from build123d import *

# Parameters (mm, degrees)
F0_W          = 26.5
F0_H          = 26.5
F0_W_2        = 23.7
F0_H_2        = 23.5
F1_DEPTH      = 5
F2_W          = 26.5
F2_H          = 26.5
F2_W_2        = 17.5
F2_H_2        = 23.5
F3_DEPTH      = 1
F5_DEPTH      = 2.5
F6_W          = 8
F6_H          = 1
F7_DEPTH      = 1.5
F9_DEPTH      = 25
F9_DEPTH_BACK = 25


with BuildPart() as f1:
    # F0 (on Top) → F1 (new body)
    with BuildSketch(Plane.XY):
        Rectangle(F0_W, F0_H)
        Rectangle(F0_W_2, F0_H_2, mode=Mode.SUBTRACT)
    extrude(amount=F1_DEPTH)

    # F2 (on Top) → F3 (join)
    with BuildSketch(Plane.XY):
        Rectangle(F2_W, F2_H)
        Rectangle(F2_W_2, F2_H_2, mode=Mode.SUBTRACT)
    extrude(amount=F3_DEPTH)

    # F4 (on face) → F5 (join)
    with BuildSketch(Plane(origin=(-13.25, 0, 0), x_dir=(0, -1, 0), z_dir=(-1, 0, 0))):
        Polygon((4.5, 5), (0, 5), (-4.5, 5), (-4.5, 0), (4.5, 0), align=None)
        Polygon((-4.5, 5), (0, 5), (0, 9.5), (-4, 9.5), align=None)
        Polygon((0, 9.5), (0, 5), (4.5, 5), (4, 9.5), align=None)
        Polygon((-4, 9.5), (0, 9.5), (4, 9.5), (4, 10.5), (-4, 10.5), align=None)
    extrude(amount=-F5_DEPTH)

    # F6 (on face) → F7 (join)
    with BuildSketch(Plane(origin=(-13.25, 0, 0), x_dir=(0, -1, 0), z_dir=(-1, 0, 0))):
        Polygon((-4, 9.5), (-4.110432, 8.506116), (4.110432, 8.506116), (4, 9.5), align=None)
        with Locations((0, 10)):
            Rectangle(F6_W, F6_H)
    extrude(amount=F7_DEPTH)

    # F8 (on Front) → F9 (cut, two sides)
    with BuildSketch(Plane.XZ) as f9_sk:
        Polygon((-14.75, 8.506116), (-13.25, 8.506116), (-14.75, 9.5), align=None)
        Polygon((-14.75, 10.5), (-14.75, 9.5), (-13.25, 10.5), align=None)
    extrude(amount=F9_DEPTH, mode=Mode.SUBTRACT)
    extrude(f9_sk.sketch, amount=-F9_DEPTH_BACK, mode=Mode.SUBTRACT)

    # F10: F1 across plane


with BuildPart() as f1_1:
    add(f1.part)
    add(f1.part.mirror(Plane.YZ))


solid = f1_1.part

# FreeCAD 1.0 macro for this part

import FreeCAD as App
import Part
import Sketcher

V = App.Vector
Q = App.Units.Quantity


def add_polygon(sketch, points):
    """Adds a closed chain of lines whose ends are joined by coincident constraints."""
    first, n = sketch.GeometryCount, len(points)
    for a, b in zip(points, points[1:] + points[:1]):
        sketch.addGeometry(Part.LineSegment(App.Vector(*a, 0), App.Vector(*b, 0)), False)
    for i in range(n):
        sketch.addConstraint(Sketcher.Constraint("Coincident", first + i, 2, first + (i + 1) % n, 1))

doc = App.newDocument("Part")
body = doc.addObject("PartDesign::Body", "Body")

# Sketch on XY plane
sketch1 = body.newObject("Sketcher::SketchObject", "Sketch")
sketch1.AttachmentSupport = (doc.getObject("XY_Plane"), [""])
sketch1.MapMode = "FlatFace"
add_polygon(sketch1, [(-13, 13), (-13, -13), (13, -13), (13, 13)])  # lines 0-3
add_polygon(sketch1, [(12, -12), (-12, -12), (-12, 12), (12, 12)])  # lines 4-7
sketch1.addConstraint(Sketcher.Constraint("Vertical", 0))
sketch1.addConstraint(Sketcher.Constraint("Horizontal", 1))
sketch1.addConstraint(Sketcher.Constraint("Vertical", 2))
sketch1.addConstraint(Sketcher.Constraint("Horizontal", 3))
sketch1.addConstraint(Sketcher.Constraint("Horizontal", 4))
sketch1.addConstraint(Sketcher.Constraint("Vertical", 5))
sketch1.addConstraint(Sketcher.Constraint("Horizontal", 6))
sketch1.addConstraint(Sketcher.Constraint("Vertical", 7))
sketch1.addConstraint(Sketcher.Constraint("Symmetric", 0, 2, 2, 2, -1, 1))
sketch1.addConstraint(Sketcher.Constraint("Symmetric", 4, 2, 6, 2, -1, 1))
sketch1.addConstraint(Sketcher.Constraint("Equal", 3, 0))
sketch1.addConstraint(Sketcher.Constraint("DistanceX", 1, 1, 1, 2, Q("26.5 mm")))
sketch1.addConstraint(Sketcher.Constraint("DistanceX", 4, 2, 4, 1, Q("23.7 mm")))
sketch1.addConstraint(Sketcher.Constraint("DistanceY", 5, 1, 5, 2, Q("23.5 mm")))
pad1 = body.newObject("PartDesign::Pad", "Pad")
pad1.Profile = sketch1
pad1.Length = 5

# Sketch on XY plane
sketch2 = body.newObject("Sketcher::SketchObject", "Sketch001")
sketch2.AttachmentSupport = (doc.getObject("XY_Plane"), [""])
sketch2.MapMode = "FlatFace"
add_polygon(sketch2, [(-13, 13), (-13, -13), (13, -13), (13, 13)])  # lines 0-3
add_polygon(sketch2, [(9, -12), (-9, -12), (-9, 12), (9, 12)])  # lines 4-7
sketch2.addConstraint(Sketcher.Constraint("Vertical", 0))
sketch2.addConstraint(Sketcher.Constraint("Horizontal", 1))
sketch2.addConstraint(Sketcher.Constraint("Vertical", 2))
sketch2.addConstraint(Sketcher.Constraint("Horizontal", 3))
sketch2.addConstraint(Sketcher.Constraint("Horizontal", 4))
sketch2.addConstraint(Sketcher.Constraint("Vertical", 5))
sketch2.addConstraint(Sketcher.Constraint("Horizontal", 6))
sketch2.addConstraint(Sketcher.Constraint("Vertical", 7))
sketch2.addConstraint(Sketcher.Constraint("Symmetric", 0, 2, 2, 2, -1, 1))
sketch2.addConstraint(Sketcher.Constraint("Symmetric", 4, 2, 6, 2, -1, 1))
sketch2.addConstraint(Sketcher.Constraint("Equal", 3, 0))
sketch2.addConstraint(Sketcher.Constraint("DistanceX", 1, 1, 1, 2, Q("26.5 mm")))
sketch2.addConstraint(Sketcher.Constraint("DistanceX", 4, 2, 4, 1, Q("17.5 mm")))
sketch2.addConstraint(Sketcher.Constraint("DistanceY", 5, 1, 5, 2, Q("23.5 mm")))
pad2 = body.newObject("PartDesign::Pad", "Pad001")
pad2.Profile = sketch2
pad2.Length = 1

# Sketch on YZ plane
sketch3 = body.newObject("Sketcher::SketchObject", "Sketch002")
sketch3.AttachmentSupport = (doc.getObject("YZ_Plane"), [""])
sketch3.MapMode = "FlatFace"
sketch3.AttachmentOffset = App.Placement(V(0, 0, -13.25), App.Rotation())
add_polygon(sketch3, [(4, 9.5), (4.5, 5), (4.5, 0), (-4.5, 0), (-4.5, 5), (-4, 9.5), (-4, 10.5), (4, 10.5)])  # lines 0-7
sketch3.addConstraint(Sketcher.Constraint("Vertical", 1))
sketch3.addConstraint(Sketcher.Constraint("Horizontal", 2))
sketch3.addConstraint(Sketcher.Constraint("Vertical", 3))
sketch3.addConstraint(Sketcher.Constraint("Vertical", 5))
sketch3.addConstraint(Sketcher.Constraint("Horizontal", 6))
sketch3.addConstraint(Sketcher.Constraint("Vertical", 7))
sketch3.addConstraint(Sketcher.Constraint("Symmetric", 1, 2, 2, 2, -1, 1))
sketch3.addConstraint(Sketcher.Constraint("Symmetric", 4, 2, 7, 2, -2))
sketch3.addConstraint(Sketcher.Constraint("Horizontal", 0, 2, 3, 2))
sketch3.addConstraint(Sketcher.Constraint("DistanceX", 2, 2, 2, 1, Q("9 mm")))
sketch3.addConstraint(Sketcher.Constraint("DistanceX", 6, 1, 6, 2, Q("8 mm")))
sketch3.addConstraint(Sketcher.Constraint("DistanceY", 1, 2, 1, 1, Q("5 mm")))
sketch3.addConstraint(Sketcher.Constraint("DistanceY", 5, 1, 5, 2, Q("1 mm")))
sketch3.addConstraint(Sketcher.Constraint("DistanceY", -1, 1, 4, 2, Q("9.5 mm")))
pad3 = body.newObject("PartDesign::Pad", "Pad002")
pad3.Profile = sketch3
pad3.Length = 2.5

# Sketch on YZ plane
sketch4 = body.newObject("Sketcher::SketchObject", "Sketch003")
sketch4.AttachmentSupport = (doc.getObject("YZ_Plane"), [""])
sketch4.MapMode = "FlatFace"
sketch4.AttachmentOffset = App.Placement(V(0, 0, -13.25), App.Rotation())
add_polygon(sketch4, [(4, 9.5), (4.1, 8.5), (-4.1, 8.5), (-4, 9.5), (-4, 10.5), (4, 10.5)])  # lines 0-5
sketch4.addConstraint(Sketcher.Constraint("Horizontal", 1))
sketch4.addConstraint(Sketcher.Constraint("Vertical", 3))
sketch4.addConstraint(Sketcher.Constraint("Horizontal", 4))
sketch4.addConstraint(Sketcher.Constraint("Vertical", 5))
sketch4.addConstraint(Sketcher.Constraint("Symmetric", 2, 2, 5, 2, -2))
sketch4.addConstraint(Sketcher.Constraint("Equal", 0, 2))
sketch4.addConstraint(Sketcher.Constraint("DistanceX", 4, 1, 4, 2, Q("8 mm")))
sketch4.addConstraint(Sketcher.Constraint("DistanceY", 3, 1, 3, 2, Q("1 mm")))
sketch4.addConstraint(Sketcher.Constraint("Distance", 0, Q("1 mm")))
sketch4.addConstraint(Sketcher.Constraint("DistanceY", -1, 1, 2, 2, Q("9.5 mm")))
sketch4.addConstraint(Sketcher.Constraint("DistanceX", 1, 2, 1, 1, Q("8.220864 mm")))
pad4 = body.newObject("PartDesign::Pad", "Pad003")
pad4.Profile = sketch4
pad4.Length = 1.5
pad4.Reversed = True

# Sketch on XZ plane
sketch5 = body.newObject("Sketcher::SketchObject", "Sketch004")
sketch5.AttachmentSupport = (doc.getObject("XZ_Plane"), [""])
sketch5.MapMode = "FlatFace"
add_polygon(sketch5, [(-14.8, 8.5), (-13.2, 8.5), (-14.8, 9.5)])  # lines 0-2
add_polygon(sketch5, [(-14.8, 10.5), (-14.8, 9.5), (-13.2, 10.5)])  # lines 3-5
sketch5.addConstraint(Sketcher.Constraint("Horizontal", 0))
sketch5.addConstraint(Sketcher.Constraint("Vertical", 2))
sketch5.addConstraint(Sketcher.Constraint("Vertical", 3))
sketch5.addConstraint(Sketcher.Constraint("Horizontal", 5))
sketch5.addConstraint(Sketcher.Constraint("Coincident", 3, 2, 1, 2))
sketch5.addConstraint(Sketcher.Constraint("Vertical", 0, 2, 4, 2))
sketch5.addConstraint(Sketcher.Constraint("DistanceY", 3, 2, 3, 1, Q("1 mm")))
sketch5.addConstraint(Sketcher.Constraint("DistanceX", 0, 1, 0, 2, Q("1.5 mm")))
sketch5.addConstraint(Sketcher.Constraint("DistanceY", -1, 1, 1, 2, Q("9.5 mm")))
sketch5.addConstraint(Sketcher.Constraint("DistanceX", 0, 2, -1, 1, Q("13.25 mm")))
sketch5.addConstraint(Sketcher.Constraint("Distance", 1, Q("1.79939 mm")))
pocket1 = body.newObject("PartDesign::Pocket", "Pocket")
pocket1.Profile = sketch5
pocket1.Type = "ThroughAll"
pocket1.Midplane = True
body2 = doc.addObject("PartDesign::Body", "Body001")
doc.recompute()

body2.BaseFeature = body
doc.recompute()

mirroring = doc.addObject("Part::Mirroring", "Mirroring")
mirroring.Source = body
mirroring.Base = V(0, 0, 0)
mirroring.Normal = V(1, 0, 0)
body3 = doc.addObject("PartDesign::Body", "Body002")
body3.BaseFeature = mirroring
boolean = body2.newObject("PartDesign::Boolean", "Boolean")
boolean.Type = "Fuse"
boolean.addObjects([body3])
doc.recompute()
mirroring.Visibility = False

doc.recompute()
